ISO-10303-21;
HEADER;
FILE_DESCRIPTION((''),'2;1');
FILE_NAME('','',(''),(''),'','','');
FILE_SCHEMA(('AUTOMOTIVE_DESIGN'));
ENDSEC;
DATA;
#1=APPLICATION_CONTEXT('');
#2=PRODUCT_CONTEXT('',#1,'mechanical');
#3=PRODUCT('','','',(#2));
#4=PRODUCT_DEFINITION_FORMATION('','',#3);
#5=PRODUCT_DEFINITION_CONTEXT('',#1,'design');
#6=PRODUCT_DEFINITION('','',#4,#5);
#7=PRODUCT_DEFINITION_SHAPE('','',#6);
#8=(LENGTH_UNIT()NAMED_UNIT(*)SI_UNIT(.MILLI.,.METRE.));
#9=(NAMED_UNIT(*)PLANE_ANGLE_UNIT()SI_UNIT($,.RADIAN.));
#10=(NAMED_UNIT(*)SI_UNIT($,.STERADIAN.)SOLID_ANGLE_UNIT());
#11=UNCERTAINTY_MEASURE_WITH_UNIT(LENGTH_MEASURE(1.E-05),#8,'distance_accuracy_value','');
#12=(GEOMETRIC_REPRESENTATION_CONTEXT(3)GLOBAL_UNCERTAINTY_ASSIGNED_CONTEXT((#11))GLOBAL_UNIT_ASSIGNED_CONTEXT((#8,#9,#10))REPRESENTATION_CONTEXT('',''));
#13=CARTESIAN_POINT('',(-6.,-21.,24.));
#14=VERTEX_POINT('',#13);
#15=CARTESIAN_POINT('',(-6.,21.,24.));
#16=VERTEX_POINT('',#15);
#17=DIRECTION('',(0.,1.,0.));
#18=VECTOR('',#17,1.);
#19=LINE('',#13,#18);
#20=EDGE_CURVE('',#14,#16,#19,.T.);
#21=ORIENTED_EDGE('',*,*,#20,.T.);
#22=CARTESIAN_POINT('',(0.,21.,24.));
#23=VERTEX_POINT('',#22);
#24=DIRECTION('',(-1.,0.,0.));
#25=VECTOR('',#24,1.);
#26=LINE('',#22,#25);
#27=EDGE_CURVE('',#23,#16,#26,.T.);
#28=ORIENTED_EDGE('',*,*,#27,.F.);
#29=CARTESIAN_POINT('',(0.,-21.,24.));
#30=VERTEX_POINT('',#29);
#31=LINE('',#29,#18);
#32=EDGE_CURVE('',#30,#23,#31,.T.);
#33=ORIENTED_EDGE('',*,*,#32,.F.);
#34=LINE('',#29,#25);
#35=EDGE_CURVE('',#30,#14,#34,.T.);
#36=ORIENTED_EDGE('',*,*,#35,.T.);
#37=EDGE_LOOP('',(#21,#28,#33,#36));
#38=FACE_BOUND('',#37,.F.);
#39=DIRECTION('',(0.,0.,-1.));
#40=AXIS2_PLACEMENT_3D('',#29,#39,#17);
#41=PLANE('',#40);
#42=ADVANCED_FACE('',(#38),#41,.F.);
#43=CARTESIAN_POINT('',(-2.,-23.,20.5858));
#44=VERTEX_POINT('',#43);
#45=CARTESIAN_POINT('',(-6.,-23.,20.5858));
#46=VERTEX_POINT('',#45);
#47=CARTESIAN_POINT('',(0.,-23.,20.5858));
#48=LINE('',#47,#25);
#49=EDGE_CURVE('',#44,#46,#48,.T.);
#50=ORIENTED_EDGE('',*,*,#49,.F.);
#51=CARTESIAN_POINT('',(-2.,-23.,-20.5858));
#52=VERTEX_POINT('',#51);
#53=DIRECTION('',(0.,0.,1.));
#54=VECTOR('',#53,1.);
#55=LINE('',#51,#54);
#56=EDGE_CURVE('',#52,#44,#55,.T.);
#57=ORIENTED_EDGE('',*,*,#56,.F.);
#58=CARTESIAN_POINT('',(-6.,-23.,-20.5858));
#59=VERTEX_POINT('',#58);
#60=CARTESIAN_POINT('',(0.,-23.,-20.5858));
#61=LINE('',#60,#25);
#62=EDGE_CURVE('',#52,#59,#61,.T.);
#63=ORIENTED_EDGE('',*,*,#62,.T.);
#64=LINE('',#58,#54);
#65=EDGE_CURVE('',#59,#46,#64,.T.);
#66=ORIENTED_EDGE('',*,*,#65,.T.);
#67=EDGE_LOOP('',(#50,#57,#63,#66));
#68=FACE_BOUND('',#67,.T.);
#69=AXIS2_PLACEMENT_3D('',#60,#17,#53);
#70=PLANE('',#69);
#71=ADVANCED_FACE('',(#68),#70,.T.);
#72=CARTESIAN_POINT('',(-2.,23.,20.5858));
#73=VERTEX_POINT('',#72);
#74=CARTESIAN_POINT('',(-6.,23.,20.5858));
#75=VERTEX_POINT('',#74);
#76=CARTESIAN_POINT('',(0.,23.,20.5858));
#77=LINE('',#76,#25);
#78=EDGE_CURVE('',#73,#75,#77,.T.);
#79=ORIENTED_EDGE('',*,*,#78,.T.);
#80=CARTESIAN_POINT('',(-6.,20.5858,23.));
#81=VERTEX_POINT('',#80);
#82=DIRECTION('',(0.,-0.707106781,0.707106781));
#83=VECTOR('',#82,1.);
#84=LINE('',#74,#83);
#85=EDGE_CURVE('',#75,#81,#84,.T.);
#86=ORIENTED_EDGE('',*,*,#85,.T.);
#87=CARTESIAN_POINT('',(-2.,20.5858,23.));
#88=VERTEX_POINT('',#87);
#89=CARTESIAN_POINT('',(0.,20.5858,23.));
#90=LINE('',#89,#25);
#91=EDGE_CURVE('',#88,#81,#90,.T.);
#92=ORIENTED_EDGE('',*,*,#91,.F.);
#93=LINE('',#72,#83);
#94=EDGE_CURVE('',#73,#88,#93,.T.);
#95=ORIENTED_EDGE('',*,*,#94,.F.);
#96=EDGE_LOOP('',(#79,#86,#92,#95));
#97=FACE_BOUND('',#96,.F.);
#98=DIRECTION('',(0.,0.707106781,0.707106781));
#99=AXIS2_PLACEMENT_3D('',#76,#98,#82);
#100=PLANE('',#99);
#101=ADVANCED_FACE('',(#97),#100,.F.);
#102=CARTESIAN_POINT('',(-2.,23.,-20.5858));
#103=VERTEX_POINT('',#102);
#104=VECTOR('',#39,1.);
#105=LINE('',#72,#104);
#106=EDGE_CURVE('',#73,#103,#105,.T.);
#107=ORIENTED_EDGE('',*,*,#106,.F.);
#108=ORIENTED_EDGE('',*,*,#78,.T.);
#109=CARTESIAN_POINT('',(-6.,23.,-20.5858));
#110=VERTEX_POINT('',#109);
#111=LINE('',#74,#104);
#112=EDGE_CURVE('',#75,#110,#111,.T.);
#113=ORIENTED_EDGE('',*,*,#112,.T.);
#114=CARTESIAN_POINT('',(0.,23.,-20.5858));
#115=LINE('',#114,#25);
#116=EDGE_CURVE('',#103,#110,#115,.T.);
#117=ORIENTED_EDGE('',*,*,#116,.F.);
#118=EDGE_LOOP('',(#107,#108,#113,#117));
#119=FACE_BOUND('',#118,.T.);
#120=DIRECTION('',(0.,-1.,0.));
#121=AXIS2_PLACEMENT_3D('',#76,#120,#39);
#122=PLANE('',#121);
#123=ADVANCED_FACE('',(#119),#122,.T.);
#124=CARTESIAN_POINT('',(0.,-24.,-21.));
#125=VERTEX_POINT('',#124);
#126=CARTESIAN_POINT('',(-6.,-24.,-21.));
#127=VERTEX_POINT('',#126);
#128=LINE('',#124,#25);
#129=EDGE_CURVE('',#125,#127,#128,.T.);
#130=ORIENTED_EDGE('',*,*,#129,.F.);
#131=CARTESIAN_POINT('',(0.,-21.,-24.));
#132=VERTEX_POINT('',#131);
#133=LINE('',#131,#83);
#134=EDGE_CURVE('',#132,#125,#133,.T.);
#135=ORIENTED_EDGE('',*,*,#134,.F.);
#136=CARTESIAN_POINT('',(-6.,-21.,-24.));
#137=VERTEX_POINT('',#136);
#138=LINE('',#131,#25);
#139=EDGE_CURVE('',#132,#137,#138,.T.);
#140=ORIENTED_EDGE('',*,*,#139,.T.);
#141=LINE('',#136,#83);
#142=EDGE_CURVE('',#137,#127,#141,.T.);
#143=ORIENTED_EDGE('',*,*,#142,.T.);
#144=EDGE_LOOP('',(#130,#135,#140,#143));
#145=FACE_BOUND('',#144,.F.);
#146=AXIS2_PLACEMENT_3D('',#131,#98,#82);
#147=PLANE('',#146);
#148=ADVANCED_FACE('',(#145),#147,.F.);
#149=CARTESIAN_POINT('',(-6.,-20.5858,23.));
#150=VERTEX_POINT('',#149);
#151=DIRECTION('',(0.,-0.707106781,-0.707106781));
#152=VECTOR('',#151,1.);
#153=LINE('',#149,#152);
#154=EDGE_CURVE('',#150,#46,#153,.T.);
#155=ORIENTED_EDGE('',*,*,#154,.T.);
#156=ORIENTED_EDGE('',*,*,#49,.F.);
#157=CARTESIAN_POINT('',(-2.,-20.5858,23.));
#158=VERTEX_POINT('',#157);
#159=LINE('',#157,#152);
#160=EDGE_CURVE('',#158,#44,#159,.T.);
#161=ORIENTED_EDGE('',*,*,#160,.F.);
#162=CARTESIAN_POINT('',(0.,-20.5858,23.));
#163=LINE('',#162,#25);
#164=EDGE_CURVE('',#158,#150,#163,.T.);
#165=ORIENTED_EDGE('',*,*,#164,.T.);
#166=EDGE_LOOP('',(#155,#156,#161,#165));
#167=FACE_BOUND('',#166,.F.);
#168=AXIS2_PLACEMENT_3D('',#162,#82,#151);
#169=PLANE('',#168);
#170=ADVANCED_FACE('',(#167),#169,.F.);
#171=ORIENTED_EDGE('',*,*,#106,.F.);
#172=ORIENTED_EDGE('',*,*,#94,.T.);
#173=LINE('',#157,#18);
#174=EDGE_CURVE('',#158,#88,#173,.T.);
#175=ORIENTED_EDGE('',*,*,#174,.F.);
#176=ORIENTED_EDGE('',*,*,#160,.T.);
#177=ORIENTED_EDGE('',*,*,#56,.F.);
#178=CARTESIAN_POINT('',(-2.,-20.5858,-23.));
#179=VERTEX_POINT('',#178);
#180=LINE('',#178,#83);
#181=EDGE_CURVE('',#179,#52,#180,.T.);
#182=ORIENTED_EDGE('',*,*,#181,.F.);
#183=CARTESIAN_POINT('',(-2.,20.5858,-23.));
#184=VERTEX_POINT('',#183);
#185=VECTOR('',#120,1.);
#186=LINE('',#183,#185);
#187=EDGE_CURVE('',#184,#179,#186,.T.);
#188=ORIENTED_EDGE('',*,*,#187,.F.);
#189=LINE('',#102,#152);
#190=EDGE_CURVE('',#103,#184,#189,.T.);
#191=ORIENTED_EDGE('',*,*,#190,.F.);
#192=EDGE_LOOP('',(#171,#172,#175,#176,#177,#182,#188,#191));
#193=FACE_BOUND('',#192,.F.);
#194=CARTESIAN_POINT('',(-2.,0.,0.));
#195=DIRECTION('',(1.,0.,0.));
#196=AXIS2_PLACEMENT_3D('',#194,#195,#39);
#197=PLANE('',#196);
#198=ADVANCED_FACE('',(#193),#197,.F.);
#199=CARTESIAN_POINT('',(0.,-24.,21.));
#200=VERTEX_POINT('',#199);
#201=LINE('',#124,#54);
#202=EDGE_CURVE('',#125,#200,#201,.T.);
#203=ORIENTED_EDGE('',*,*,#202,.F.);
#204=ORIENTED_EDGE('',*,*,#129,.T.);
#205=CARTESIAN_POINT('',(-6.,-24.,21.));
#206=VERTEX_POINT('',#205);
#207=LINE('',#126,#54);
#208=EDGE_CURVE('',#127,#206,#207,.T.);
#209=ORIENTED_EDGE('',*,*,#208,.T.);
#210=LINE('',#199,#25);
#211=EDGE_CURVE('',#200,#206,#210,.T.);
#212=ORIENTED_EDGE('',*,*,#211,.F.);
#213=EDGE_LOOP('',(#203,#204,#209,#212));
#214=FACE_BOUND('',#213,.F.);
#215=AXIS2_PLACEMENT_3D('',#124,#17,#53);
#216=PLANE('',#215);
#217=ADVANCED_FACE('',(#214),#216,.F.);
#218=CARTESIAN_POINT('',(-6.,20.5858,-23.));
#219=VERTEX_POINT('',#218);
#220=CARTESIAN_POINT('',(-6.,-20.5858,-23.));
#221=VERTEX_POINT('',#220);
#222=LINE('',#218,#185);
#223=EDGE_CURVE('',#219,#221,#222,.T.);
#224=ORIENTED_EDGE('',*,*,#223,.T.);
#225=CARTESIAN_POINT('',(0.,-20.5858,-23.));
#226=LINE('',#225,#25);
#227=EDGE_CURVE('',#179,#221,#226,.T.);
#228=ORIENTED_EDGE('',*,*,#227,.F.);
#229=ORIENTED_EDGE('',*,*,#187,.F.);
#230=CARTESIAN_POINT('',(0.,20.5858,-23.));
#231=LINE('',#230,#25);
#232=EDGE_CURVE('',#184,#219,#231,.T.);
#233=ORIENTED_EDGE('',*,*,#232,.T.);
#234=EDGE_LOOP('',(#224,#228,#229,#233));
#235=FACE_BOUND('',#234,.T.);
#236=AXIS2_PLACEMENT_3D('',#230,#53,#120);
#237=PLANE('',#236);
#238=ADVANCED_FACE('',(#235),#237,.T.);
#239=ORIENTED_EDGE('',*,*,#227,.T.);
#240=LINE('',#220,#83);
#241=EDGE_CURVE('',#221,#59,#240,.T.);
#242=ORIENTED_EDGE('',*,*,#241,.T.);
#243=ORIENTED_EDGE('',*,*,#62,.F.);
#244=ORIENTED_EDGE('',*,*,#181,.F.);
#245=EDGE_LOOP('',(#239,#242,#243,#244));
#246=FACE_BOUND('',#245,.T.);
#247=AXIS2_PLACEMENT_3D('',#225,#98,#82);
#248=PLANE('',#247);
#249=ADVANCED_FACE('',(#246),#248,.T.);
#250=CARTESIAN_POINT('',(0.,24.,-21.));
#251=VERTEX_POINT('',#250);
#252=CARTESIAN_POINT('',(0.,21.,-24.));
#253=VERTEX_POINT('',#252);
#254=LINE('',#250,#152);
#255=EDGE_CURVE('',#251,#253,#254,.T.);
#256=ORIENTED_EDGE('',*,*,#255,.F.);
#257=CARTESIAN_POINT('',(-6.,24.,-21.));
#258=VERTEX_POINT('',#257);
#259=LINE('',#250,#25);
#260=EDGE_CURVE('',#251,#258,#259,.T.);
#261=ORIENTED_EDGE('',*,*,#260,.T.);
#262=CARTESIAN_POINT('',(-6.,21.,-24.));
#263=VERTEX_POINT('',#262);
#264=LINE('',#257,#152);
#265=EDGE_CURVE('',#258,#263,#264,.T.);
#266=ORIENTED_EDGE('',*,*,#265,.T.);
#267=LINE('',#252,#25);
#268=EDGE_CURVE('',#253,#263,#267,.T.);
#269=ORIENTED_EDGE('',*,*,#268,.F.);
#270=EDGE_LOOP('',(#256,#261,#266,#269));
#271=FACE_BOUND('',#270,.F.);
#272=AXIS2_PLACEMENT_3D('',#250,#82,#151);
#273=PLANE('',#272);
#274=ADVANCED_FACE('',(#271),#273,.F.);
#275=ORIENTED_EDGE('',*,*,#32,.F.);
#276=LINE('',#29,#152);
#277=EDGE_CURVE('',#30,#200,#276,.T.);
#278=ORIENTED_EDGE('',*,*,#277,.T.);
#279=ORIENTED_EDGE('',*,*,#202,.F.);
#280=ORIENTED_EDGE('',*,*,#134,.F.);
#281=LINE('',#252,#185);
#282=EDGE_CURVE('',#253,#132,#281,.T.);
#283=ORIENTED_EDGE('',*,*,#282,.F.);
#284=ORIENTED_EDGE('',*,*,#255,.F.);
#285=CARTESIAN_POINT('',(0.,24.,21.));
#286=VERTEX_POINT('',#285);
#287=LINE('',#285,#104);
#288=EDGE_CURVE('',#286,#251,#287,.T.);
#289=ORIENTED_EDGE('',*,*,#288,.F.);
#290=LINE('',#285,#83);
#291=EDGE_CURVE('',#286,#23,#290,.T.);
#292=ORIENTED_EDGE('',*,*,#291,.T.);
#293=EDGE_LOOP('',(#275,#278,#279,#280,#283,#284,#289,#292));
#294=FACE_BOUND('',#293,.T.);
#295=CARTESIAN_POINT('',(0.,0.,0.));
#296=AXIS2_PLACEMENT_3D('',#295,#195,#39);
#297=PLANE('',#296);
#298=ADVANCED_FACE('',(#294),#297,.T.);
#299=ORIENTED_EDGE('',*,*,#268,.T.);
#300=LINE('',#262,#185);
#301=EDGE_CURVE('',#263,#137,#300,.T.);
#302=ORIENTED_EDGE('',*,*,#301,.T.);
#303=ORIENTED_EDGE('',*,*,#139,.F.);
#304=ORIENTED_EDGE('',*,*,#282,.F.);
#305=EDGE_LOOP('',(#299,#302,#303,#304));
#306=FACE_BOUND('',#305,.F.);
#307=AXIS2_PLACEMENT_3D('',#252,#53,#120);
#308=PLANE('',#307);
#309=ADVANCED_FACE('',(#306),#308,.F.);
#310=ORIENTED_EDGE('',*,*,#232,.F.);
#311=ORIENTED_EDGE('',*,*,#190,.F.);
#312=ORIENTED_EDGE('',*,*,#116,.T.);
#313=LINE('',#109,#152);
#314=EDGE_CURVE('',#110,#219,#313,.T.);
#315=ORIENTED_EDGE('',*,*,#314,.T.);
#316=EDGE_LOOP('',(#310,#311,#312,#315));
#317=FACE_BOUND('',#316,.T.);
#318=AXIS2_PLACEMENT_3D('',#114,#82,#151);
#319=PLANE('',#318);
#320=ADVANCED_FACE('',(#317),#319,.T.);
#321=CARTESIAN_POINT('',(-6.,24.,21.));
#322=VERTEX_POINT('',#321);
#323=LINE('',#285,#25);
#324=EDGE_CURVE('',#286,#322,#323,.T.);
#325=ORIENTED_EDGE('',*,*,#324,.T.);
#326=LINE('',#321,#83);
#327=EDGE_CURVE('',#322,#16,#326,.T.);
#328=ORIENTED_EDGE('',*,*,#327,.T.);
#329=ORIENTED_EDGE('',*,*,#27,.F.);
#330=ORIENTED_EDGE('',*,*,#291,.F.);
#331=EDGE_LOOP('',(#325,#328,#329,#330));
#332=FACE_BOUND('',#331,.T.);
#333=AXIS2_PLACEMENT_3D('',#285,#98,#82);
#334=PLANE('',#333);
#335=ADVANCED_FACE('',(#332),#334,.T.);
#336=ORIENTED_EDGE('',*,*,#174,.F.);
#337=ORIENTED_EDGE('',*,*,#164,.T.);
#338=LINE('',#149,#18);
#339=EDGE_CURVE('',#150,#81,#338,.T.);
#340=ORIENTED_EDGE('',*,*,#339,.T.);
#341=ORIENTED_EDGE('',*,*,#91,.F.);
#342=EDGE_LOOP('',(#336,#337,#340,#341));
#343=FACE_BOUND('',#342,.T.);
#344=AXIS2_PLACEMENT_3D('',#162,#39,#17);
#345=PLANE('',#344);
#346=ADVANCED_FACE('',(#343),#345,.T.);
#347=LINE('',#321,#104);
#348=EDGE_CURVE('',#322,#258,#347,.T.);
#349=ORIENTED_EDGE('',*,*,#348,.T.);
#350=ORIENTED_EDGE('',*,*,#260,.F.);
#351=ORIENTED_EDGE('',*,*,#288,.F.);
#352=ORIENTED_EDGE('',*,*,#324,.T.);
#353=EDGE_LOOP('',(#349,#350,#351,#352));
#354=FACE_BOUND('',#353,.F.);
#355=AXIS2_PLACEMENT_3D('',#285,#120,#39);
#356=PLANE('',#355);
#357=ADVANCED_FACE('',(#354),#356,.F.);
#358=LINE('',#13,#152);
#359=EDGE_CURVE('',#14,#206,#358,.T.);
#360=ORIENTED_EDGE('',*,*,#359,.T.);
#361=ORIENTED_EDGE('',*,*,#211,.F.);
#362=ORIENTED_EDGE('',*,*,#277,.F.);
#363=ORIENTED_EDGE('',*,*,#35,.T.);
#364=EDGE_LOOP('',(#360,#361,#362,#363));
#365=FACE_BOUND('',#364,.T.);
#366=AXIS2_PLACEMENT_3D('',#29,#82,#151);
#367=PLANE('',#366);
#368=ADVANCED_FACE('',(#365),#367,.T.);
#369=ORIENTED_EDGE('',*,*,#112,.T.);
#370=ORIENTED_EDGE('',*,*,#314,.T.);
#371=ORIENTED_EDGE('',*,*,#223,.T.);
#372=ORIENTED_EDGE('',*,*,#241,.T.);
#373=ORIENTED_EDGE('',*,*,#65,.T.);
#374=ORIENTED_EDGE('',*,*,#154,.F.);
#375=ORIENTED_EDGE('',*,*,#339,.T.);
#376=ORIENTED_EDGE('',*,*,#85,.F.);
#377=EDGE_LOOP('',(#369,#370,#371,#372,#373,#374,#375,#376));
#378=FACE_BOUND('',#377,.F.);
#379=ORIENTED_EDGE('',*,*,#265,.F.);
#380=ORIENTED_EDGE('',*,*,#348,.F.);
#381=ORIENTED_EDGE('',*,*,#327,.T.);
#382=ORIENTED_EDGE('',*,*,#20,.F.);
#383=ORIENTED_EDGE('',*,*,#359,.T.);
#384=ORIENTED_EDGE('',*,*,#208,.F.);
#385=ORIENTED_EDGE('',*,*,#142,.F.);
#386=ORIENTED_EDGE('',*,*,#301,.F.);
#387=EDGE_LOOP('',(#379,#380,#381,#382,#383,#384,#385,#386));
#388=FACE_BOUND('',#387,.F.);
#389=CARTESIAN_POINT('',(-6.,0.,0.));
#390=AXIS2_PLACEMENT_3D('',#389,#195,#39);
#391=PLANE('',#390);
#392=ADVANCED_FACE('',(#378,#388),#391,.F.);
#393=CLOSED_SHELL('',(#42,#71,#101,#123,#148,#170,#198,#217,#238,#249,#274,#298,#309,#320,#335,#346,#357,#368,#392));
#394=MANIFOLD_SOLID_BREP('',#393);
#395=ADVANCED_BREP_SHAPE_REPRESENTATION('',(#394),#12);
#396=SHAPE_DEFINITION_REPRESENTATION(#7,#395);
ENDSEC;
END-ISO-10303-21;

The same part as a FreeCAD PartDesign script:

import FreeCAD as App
import Part
import Sketcher
from FreeCAD import Vector
Q = App.Units.Quantity


def add_polygon(sketch, points):
    """Adds a closed chain of lines whose ends are joined by coincident constraints."""
    first, n = sketch.GeometryCount, len(points)
    for a, b in zip(points, points[1:] + points[:1]):
        sketch.addGeometry(Part.LineSegment(App.Vector(*a, 0), App.Vector(*b, 0)), False)
    for i in range(n):
        sketch.addConstraint(Sketcher.Constraint("Coincident", first + i, 2, first + (i + 1) % n, 1))

doc = App.newDocument("Part")
body = doc.addObject("PartDesign::Body", "Body")

# Sketch on YZ plane
sketch1 = body.newObject("Sketcher::SketchObject", "Sketch")
sketch1.AttachmentSupport = (doc.getObject("YZ_Plane"), [""])
sketch1.MapMode = "FlatFace"
add_polygon(sketch1, [(24, -21), (24, 21), (21, 24), (-21, 24), (-24, 21), (-24, -21), (-21, -24), (21, -24)])  # lines 0-7
add_polygon(sketch1, [(23, -20.6), (20.6, -23), (-20.6, -23), (-23, -20.6), (-23, 20.6), (-20.6, 23), (20.6, 23), (23, 20.6)])  # lines 8-15
sketch1.addConstraint([
    Sketcher.Constraint("Vertical", 0),
    Sketcher.Constraint("Horizontal", 2),
    Sketcher.Constraint("Vertical", 4),
    Sketcher.Constraint("Horizontal", 6),
    Sketcher.Constraint("Horizontal", 9),
    Sketcher.Constraint("Vertical", 11),
    Sketcher.Constraint("Horizontal", 13),
    Sketcher.Constraint("Vertical", 15),
    Sketcher.Constraint("Symmetric", 0, 2, 4, 2, -1, 1),
    Sketcher.Constraint("Symmetric", 1, 2, 5, 2, -1, 1),
    Sketcher.Constraint("Symmetric", 8, 2, 12, 2, -1, 1),
    Sketcher.Constraint("Symmetric", 10, 2, 14, 2, -1, 1),
    Sketcher.Constraint("Perpendicular", 1, 3),
    Sketcher.Constraint("Perpendicular", 5, 7),
    Sketcher.Constraint("Parallel", 7, 8),
    Sketcher.Constraint("Perpendicular", 8, 10),
    Sketcher.Constraint("Perpendicular", 10, 12),
    Sketcher.Constraint("Perpendicular", 12, 14),
    Sketcher.Constraint("Horizontal", 0, 2, 3, 2),
    Sketcher.Constraint("Horizontal", 4, 2, 7, 2),
    Sketcher.Constraint("Horizontal", 11, 2, 14, 2),
    Sketcher.Constraint("Vertical", 2, 2, 5, 2),
    Sketcher.Constraint("Equal", 6, 0),
    Sketcher.Constraint("Equal", 13, 11),
    Sketcher.Constraint("DistanceX", 2, 2, 2, 1, Q("42 mm")),
    Sketcher.Constraint("DistanceX", 1, 2, 0, 2, Q("3 mm")),
    Sketcher.Constraint("DistanceY", 6, 2, 8, 2, Q("1 mm")),
    Sketcher.Constraint("DistanceX", 9, 2, 9, 1, Q("41.1716 mm")),
])
pad1 = body.newObject("PartDesign::Pad", "Pad")
pad1.Profile = sketch1
pad1.Length = 6
pad1.Reversed = True

# Sketch on YZ plane
sketch2 = body.newObject("Sketcher::SketchObject", "Sketch001")
sketch2.AttachmentSupport = (doc.getObject("YZ_Plane"), [""])
sketch2.MapMode = "FlatFace"
add_polygon(sketch2, [(-20.6, -23), (20.6, -23), (23, -20.6), (23, 20.6), (20.6, 23), (-20.6, 23), (-23, 20.6), (-23, -20.6)])  # lines 0-7
sketch2.addConstraint([
    Sketcher.Constraint("Horizontal", 0),
    Sketcher.Constraint("Vertical", 2),
    Sketcher.Constraint("Horizontal", 4),
    Sketcher.Constraint("Vertical", 6),
    Sketcher.Constraint("Symmetric", 0, 2, 4, 2, -1, 1),
    Sketcher.Constraint("Symmetric", 1, 2, 5, 2, -1, 1),
    Sketcher.Constraint("Perpendicular", 1, 3),
    Sketcher.Constraint("Perpendicular", 5, 7),
    Sketcher.Constraint("Horizontal", 2, 2, 5, 2),
    Sketcher.Constraint("Horizontal", 1, 2, 6, 2),
    Sketcher.Constraint("Vertical", 0, 2, 3, 2),
    Sketcher.Constraint("Equal", 4, 2),
    Sketcher.Constraint("DistanceY", 0, 2, -1, 1, Q("23 mm")),
    Sketcher.Constraint("DistanceX", 0, 1, 0, 2, Q("41.1716 mm")),
])
pad2 = body.newObject("PartDesign::Pad", "Pad001")
pad2.Profile = sketch2
pad2.Length = 2
pad2.Reversed = True

doc.recompute()
